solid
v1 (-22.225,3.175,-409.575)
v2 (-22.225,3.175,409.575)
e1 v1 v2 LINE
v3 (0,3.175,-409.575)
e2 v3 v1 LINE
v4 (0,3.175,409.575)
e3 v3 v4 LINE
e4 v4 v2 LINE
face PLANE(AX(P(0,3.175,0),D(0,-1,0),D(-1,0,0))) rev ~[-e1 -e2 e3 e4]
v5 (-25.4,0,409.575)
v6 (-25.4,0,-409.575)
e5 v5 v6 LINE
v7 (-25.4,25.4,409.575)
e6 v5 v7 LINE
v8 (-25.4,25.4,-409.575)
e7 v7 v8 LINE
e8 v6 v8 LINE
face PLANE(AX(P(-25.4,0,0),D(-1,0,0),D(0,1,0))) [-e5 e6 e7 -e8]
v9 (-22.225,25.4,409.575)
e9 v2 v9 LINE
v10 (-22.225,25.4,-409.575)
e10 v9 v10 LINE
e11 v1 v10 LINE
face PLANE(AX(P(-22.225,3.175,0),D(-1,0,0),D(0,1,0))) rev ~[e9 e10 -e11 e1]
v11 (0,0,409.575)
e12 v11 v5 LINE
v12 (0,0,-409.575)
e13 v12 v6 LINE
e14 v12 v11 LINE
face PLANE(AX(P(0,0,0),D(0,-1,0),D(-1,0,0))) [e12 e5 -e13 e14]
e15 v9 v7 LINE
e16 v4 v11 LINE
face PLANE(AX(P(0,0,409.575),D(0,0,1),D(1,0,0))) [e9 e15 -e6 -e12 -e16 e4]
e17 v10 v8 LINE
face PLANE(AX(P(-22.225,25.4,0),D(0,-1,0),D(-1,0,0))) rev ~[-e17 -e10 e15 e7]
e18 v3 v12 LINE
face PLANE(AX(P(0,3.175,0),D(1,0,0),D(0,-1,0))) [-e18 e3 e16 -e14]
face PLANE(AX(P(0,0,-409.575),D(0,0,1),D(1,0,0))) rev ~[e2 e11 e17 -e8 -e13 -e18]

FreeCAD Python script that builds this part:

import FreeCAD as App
import Part
import Sketcher

V = App.Vector
Q = App.Units.Quantity

doc = App.newDocument("Part")
body = doc.addObject("PartDesign::Body", "Body")

sketch1 = body.newObject("Sketcher::SketchObject", "Sketch")
sketch1.AttachmentSupport = (doc.getObject("XY_Plane"), [""])
sketch1.MapMode = "FlatFace"
sketch1.addGeometry([
    Part.LineSegment(V(-25.4, 0, 0), V(0, 0, 0)),
    Part.LineSegment(V(0, 0, 0), V(0, 3.175, 0)),
    Part.LineSegment(V(0, 3.175, 0), V(-22.225, 3.175, 0)),
    Part.LineSegment(V(-22.225, 3.175, 0), V(-22.225, 25.4, 0)),
    Part.LineSegment(V(-22.225, 25.4, 0), V(-25.4, 25.4, 0)),
    Part.LineSegment(V(-25.4, 25.4, 0), V(-25.4, 0, 0)),
], False)
sketch1.addConstraint([
    Sketcher.Constraint("Coincident", 0, 2, 1, 1),
    Sketcher.Constraint("Coincident", 1, 2, 2, 1),
    Sketcher.Constraint("Coincident", 2, 2, 3, 1),
    Sketcher.Constraint("Coincident", 3, 2, 4, 1),
    Sketcher.Constraint("Coincident", 4, 2, 5, 1),
    Sketcher.Constraint("Coincident", 5, 2, 0, 1),
    Sketcher.Constraint("Horizontal", 0),
    Sketcher.Constraint("Vertical", 1),
    Sketcher.Constraint("Horizontal", 2),
    Sketcher.Constraint("Vertical", 3),
    Sketcher.Constraint("Horizontal", 4),
    Sketcher.Constraint("Vertical", 5),
    Sketcher.Constraint("Coincident", 0, 2, -1, 1),
    Sketcher.Constraint("Equal", 4, 1),
    Sketcher.Constraint("Equal", 2, 3),
    Sketcher.Constraint("DistanceX", 0, 1, 0, 2, Q("1 in")),
    Sketcher.Constraint("DistanceX", 4, 2, 4, 1, Q("0.125 in")),
])
pad1 = body.newObject("PartDesign::Pad", "Pad")
pad1.Profile = sketch1
pad1.Length = Q("32.25 in")
pad1.Midplane = True

doc.recompute()
